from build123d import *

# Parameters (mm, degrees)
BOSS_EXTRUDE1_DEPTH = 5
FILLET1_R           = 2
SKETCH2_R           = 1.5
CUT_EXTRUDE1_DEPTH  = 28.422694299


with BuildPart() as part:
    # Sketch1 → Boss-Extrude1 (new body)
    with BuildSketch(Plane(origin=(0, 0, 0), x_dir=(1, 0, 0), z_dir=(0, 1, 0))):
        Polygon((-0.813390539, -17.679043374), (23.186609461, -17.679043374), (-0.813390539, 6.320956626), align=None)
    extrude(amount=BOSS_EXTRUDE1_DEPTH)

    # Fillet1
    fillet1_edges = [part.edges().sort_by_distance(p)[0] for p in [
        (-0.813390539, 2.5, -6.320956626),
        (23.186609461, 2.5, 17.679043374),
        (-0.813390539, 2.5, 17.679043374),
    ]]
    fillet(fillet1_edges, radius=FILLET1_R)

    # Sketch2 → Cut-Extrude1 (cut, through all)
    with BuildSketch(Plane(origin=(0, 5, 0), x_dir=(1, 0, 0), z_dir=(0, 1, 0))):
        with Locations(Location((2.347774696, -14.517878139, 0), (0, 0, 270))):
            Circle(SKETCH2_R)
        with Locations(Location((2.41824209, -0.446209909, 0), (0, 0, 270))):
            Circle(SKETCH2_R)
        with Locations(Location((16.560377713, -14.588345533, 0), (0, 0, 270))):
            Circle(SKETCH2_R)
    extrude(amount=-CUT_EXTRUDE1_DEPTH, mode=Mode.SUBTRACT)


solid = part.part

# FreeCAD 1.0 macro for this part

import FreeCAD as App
import Part
import Sketcher
from FreeCAD import Vector


def edges_at(feature, points):
    """Names of the edges that pass closest to the given points."""
    edges = feature.Shape.Edges
    near = lambda p: min(range(len(edges)), key=lambda i: edges[i].distToShape(Part.Vertex(*p))[0])
    return sorted({f"Edge{near(p) + 1}" for p in points})

doc = App.newDocument("Part")
body = doc.addObject("PartDesign::Body", "Body")

# Sketch on XZ plane
sketch1 = doc.addObject("Sketcher::SketchObject", "Sketch")
body.addObject(sketch1)
sketch1.AttachmentSupport = (doc.XZ_Plane, [""])
sketch1.MapMode = "FlatFace"
sketch1.addGeometry([
    Part.LineSegment(Vector(-0.813391, 17.679043, 0), Vector(23.186609, 17.679043, 0)),
    Part.LineSegment(Vector(23.186609, 17.679043, 0), Vector(-0.813391, -6.320957, 0)),
    Part.LineSegment(Vector(-0.813391, -6.320957, 0), Vector(-0.813391, 17.679043, 0)),
], False)
sketch1.addConstraint([
    Sketcher.Constraint("Coincident", 0, 2, 1, 1),
    Sketcher.Constraint("Coincident", 1, 2, 2, 1),
    Sketcher.Constraint("Coincident", 2, 2, 0, 1),
    Sketcher.Constraint("Horizontal", 0),
    Sketcher.Constraint("Vertical", 2),
    Sketcher.Constraint("Equal", 0, 2),
    Sketcher.Constraint("DistanceX", 0, 1, 0, 2, 24.0),
    Sketcher.Constraint("DistanceX", -1, 1, 0, 2, 23.186609),
    Sketcher.Constraint("DistanceY", -1, 1, 0, 2, 17.679043),
])
pad1 = doc.addObject("PartDesign::Pad", "Pad")
body.addObject(pad1)
pad1.Profile = sketch1
pad1.Length = 5
pad1.Reversed = True
doc.recompute()

fillet = doc.addObject("PartDesign::Fillet", "Fillet")
body.addObject(fillet)
fillet.Base = (pad1, edges_at(pad1, [(-0.813, 2.5, -6.321), (23.187, 2.5, 17.679), (-0.813, 2.5, 17.679)]))
fillet.Radius = 2

# Sketch on XZ plane
sketch2 = doc.addObject("Sketcher::SketchObject", "Sketch001")
body.addObject(sketch2)
sketch2.AttachmentSupport = (doc.XZ_Plane, [""])
sketch2.MapMode = "FlatFace"
sketch2.AttachmentOffset = App.Placement(Vector(0, 0, -5), App.Rotation())
sketch2.addGeometry([
    Part.Circle(Vector(2.347775, 14.517878, 0), Vector(0, 0, 1), 1.5),
    Part.Circle(Vector(2.418242, 0.44621, 0), Vector(0, 0, 1), 1.5),
    Part.Circle(Vector(16.560378, 14.588346, 0), Vector(0, 0, 1), 1.5),
], False)
sketch2.addConstraint([
    Sketcher.Constraint("Equal", 0, 1),
    Sketcher.Constraint("Equal", 1, 2),
    Sketcher.Constraint("Diameter", 0, 3.0),
    Sketcher.Constraint("DistanceY", -1, 1, 0, 3, 14.517878),
    Sketcher.Constraint("DistanceY", -1, 1, 1, 3, 0.44621),
    Sketcher.Constraint("DistanceX", -1, 1, 0, 3, 2.347775),
    Sketcher.Constraint("DistanceX", -1, 1, 1, 3, 2.418242),
    Sketcher.Constraint("DistanceX", -1, 1, 2, 3, 16.560378),
    Sketcher.Constraint("DistanceY", -1, 1, 2, 3, 14.588346),
])
pocket1 = doc.addObject("PartDesign::Pocket", "Pocket")
body.addObject(pocket1)
pocket1.Profile = sketch2
pocket1.Type = "ThroughAll"
pocket1.Reversed = True

doc.recompute()
